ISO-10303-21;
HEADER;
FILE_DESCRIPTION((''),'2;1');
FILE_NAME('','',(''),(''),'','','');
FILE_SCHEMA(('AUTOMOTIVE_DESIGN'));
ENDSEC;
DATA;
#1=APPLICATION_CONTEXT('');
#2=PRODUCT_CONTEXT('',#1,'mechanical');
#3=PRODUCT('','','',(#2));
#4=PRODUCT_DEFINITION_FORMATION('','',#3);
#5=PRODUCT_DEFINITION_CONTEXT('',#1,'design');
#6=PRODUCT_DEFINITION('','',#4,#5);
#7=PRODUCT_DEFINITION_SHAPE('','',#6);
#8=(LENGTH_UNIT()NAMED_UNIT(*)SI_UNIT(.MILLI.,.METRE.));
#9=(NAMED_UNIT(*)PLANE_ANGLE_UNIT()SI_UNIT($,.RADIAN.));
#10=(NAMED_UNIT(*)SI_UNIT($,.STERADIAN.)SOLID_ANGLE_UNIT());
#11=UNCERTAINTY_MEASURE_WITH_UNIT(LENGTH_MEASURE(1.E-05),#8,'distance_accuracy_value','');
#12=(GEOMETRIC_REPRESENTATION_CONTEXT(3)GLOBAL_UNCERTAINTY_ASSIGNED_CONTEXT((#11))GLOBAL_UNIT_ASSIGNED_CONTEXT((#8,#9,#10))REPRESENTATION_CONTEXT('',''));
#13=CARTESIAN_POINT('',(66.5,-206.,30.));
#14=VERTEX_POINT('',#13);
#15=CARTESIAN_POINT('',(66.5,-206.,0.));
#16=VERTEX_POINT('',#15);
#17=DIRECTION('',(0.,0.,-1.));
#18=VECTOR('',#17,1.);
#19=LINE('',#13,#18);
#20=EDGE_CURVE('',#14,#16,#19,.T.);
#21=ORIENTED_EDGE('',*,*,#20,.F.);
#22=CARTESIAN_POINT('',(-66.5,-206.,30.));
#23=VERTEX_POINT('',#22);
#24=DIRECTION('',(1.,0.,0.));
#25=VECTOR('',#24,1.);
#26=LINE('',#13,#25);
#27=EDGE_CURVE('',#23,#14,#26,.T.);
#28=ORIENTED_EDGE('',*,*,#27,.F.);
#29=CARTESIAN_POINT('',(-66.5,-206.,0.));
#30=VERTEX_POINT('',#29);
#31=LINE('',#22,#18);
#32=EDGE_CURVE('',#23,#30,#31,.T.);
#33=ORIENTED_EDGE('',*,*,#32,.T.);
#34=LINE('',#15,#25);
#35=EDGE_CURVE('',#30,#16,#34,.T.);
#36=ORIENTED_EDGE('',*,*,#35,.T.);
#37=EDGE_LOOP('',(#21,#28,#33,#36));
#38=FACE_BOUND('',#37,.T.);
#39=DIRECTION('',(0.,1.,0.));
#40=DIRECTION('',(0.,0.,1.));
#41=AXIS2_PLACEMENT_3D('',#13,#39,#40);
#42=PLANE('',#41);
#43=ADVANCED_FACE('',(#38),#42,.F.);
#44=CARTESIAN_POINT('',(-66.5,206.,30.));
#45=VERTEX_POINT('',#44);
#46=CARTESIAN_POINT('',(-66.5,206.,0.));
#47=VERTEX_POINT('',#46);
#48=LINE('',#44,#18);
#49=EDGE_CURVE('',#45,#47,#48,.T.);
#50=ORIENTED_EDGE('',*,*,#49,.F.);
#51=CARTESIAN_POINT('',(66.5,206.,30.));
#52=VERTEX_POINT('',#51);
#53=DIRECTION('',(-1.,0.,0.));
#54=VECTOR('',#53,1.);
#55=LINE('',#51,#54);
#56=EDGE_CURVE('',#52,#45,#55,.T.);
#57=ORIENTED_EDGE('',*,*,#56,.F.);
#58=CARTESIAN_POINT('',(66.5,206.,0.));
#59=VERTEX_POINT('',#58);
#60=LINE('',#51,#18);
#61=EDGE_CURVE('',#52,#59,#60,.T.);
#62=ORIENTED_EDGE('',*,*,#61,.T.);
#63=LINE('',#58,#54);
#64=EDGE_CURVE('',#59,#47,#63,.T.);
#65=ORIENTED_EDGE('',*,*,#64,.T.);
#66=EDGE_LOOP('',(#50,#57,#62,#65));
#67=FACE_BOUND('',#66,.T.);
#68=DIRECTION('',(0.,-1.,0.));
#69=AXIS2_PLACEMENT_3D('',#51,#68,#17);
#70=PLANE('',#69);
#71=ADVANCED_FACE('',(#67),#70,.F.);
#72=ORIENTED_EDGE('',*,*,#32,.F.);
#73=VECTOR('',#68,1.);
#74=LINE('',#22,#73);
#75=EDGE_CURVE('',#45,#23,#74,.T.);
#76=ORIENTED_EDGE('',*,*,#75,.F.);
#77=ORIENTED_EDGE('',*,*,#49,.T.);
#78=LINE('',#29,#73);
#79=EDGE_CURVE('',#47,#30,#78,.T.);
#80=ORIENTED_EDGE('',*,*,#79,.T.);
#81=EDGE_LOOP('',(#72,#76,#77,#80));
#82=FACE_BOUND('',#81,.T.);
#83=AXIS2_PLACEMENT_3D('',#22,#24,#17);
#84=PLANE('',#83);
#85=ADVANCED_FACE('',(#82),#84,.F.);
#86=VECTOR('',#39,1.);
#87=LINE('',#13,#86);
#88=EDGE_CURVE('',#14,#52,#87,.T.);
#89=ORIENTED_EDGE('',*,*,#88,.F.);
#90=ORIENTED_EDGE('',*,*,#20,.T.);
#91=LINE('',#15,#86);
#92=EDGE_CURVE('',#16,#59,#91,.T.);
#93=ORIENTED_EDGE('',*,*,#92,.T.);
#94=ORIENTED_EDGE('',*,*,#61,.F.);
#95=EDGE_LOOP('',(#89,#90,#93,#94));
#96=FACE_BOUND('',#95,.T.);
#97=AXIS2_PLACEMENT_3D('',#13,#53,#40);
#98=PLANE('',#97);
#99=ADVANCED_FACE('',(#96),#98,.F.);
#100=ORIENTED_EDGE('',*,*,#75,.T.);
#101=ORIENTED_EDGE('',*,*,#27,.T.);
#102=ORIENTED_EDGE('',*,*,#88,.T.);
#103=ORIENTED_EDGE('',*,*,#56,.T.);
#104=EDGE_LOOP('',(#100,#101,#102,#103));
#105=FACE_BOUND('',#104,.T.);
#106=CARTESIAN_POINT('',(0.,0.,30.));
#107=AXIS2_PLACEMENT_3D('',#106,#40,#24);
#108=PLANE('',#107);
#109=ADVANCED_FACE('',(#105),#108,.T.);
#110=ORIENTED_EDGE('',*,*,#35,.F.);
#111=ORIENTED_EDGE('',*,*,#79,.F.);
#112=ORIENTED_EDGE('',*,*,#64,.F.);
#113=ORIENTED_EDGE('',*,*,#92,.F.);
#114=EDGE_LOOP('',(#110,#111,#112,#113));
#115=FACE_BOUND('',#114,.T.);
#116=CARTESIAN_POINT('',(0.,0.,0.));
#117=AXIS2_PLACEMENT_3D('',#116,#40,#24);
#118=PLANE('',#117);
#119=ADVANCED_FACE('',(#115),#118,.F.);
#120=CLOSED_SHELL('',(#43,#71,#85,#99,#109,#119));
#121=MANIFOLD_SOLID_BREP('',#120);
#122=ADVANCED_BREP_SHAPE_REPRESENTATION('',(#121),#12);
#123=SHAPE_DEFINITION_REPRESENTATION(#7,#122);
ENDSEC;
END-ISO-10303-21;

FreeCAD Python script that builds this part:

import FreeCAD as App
import Part
import Sketcher

V = App.Vector

doc = App.newDocument("Part")
params = doc.addObject("Spreadsheet::Sheet", "Params")
for row, (alias, value) in enumerate([
    ("sketch1_width", "133 mm"),
    ("sketch1_height", "412 mm"),
    ("pad1_length", "30 mm"),
], start=1):
    params.set(f"A{row}", alias)
    params.set(f"B{row}", "=" + value)
    params.setAlias(f"B{row}", alias)

body = doc.addObject("PartDesign::Body", "Body")

# Sketch on XY plane
sketch1 = body.newObject("Sketcher::SketchObject", "Sketch")
sketch1.AttachmentSupport = (doc.getObject("XY_Plane"), [""])
sketch1.MapMode = "FlatFace"
sketch1.addGeometry([
    Part.LineSegment(V(-66.5, 206, 0), V(-66.5, -206, 0)),
    Part.LineSegment(V(-66.5, -206, 0), V(66.5, -206, 0)),
    Part.LineSegment(V(66.5, -206, 0), V(66.5, 206, 0)),
    Part.LineSegment(V(66.5, 206, 0), V(-66.5, 206, 0)),
], False)
sketch1.addConstraint([
    Sketcher.Constraint("Coincident", 0, 2, 1, 1),
    Sketcher.Constraint("Coincident", 1, 2, 2, 1),
    Sketcher.Constraint("Coincident", 2, 2, 3, 1),
    Sketcher.Constraint("Coincident", 3, 2, 0, 1),
    Sketcher.Constraint("Vertical", 0),
    Sketcher.Constraint("Horizontal", 1),
    Sketcher.Constraint("Vertical", 2),
    Sketcher.Constraint("Horizontal", 3),
    Sketcher.Constraint("Symmetric", 0, 2, 2, 2, -1, 1),
    Sketcher.Constraint("DistanceX", 1, 1, 1, 2, 133.0),
    Sketcher.Constraint("DistanceY", 0, 2, 0, 1, 412.0),
])
sketch1.setExpression("Constraints[9]", "Params.sketch1_width")
sketch1.setExpression("Constraints[10]", "Params.sketch1_height")
pad1 = body.newObject("PartDesign::Pad", "Pad")
pad1.Profile = sketch1
pad1.setExpression("Length", "Params.pad1_length")

doc.recompute()
